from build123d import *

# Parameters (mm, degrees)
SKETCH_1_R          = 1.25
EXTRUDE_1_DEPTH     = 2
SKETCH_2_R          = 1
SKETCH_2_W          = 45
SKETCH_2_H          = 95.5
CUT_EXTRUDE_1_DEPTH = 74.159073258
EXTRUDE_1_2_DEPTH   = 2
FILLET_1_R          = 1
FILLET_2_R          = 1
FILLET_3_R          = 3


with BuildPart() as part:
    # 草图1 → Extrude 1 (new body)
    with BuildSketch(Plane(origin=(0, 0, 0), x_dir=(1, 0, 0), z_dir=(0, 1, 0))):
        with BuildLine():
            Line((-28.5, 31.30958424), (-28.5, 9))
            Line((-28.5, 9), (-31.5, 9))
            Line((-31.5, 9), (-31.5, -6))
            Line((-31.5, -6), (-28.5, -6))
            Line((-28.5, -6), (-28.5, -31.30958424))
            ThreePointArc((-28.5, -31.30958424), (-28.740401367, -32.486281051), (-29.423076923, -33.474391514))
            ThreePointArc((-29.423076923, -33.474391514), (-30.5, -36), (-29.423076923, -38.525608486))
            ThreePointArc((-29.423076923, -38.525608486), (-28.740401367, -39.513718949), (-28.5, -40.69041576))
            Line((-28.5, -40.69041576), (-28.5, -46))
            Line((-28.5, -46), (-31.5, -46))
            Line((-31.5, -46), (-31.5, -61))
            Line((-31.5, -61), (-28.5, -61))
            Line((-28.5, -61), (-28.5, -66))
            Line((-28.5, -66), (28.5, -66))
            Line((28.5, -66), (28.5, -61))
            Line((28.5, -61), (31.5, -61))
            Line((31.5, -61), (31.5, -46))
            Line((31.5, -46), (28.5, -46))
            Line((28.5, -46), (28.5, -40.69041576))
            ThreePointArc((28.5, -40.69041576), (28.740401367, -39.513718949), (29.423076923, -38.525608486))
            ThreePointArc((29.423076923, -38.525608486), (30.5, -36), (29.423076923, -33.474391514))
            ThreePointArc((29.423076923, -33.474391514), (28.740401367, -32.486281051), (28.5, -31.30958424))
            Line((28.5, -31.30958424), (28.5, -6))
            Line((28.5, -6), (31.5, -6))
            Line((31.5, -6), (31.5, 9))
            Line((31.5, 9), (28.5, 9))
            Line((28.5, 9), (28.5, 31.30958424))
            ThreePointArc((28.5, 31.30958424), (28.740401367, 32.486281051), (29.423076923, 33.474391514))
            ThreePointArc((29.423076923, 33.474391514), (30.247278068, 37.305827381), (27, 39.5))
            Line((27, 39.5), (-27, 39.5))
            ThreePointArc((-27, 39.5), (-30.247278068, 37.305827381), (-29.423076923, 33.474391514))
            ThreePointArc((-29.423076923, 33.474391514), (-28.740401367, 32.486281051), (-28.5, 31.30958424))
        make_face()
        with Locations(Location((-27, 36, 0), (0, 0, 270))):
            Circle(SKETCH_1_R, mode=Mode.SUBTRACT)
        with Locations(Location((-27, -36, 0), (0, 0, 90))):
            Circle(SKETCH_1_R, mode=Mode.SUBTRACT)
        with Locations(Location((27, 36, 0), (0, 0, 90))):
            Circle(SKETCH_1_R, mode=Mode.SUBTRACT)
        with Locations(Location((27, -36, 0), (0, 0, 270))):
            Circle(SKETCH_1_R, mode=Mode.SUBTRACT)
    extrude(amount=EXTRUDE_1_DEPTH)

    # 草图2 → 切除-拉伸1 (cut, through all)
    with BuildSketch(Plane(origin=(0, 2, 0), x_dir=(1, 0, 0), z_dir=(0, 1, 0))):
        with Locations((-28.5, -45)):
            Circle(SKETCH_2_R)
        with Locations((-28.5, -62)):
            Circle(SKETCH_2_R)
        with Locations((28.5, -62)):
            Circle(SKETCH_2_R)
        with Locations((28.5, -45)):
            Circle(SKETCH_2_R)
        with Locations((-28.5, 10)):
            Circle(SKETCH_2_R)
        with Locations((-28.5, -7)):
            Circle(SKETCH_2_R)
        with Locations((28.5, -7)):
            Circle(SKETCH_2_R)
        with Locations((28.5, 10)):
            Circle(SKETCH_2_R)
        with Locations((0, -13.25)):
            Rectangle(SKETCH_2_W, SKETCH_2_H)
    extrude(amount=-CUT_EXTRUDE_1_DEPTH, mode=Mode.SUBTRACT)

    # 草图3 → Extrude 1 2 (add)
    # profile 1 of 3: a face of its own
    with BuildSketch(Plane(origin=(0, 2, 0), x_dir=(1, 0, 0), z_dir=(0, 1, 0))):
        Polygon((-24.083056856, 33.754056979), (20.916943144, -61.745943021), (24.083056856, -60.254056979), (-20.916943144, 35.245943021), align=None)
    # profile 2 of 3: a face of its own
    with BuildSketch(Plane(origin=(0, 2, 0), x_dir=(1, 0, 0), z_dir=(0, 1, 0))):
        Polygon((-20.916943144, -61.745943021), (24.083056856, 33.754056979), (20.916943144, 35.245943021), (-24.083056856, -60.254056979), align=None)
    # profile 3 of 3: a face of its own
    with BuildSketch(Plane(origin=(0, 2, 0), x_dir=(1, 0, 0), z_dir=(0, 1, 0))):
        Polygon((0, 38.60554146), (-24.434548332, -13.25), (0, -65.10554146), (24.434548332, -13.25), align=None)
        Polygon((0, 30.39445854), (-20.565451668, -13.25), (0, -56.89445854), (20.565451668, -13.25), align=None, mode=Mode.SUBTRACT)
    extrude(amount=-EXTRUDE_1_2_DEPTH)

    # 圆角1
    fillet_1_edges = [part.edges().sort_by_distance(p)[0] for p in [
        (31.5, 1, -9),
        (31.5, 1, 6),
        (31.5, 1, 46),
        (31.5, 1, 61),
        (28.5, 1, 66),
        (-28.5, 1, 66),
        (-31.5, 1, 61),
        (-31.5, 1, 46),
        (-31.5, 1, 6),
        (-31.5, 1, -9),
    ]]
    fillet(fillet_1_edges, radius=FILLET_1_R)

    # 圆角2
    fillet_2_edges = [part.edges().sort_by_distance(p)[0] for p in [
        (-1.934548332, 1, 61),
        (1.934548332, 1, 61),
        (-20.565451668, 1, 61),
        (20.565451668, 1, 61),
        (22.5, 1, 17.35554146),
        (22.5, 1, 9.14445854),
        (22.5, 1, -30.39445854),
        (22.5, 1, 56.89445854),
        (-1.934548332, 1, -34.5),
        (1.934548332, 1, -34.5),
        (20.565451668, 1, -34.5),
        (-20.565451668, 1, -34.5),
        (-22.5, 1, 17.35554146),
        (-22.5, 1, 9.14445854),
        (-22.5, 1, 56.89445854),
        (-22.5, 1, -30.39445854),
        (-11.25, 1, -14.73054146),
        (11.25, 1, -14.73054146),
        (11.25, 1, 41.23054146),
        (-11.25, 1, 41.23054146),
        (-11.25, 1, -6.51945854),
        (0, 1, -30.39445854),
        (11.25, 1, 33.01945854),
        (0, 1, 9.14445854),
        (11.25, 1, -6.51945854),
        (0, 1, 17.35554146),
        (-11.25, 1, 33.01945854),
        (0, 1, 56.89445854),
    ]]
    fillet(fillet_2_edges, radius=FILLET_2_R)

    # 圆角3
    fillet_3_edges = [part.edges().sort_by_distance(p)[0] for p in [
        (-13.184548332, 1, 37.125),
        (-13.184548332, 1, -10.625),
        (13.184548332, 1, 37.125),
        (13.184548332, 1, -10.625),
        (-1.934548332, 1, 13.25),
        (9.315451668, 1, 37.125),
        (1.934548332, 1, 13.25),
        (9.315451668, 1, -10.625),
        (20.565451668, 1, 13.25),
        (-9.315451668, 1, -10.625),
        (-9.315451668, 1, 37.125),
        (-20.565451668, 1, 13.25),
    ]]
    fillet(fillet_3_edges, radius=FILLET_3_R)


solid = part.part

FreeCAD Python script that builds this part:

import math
import FreeCAD as App
import Part
import Sketcher
Q = App.Units.Quantity


def edges_at(feature, points):
    """Names of the edges that pass closest to the given points."""
    edges = feature.Shape.Edges
    near = lambda p: min(range(len(edges)), key=lambda i: edges[i].distToShape(Part.Vertex(*p))[0])
    return sorted({f"Edge{near(p) + 1}" for p in points})


def add_polygon(sketch, points):
    """Adds a closed chain of lines whose ends are joined by coincident constraints."""
    first, n = sketch.GeometryCount, len(points)
    for a, b in zip(points, points[1:] + points[:1]):
        sketch.addGeometry(Part.LineSegment(App.Vector(*a, 0), App.Vector(*b, 0)), False)
    for i in range(n):
        sketch.addConstraint(Sketcher.Constraint("Coincident", first + i, 2, first + (i + 1) % n, 1))

doc = App.newDocument("Part")
body = doc.addObject("PartDesign::Body", "Body")

# Sketch on XZ plane
sketch1 = body.newObject("Sketcher::SketchObject", "Sketch")
sketch1.AttachmentSupport = (doc.getObject("XZ_Plane"), [""])
sketch1.MapMode = "FlatFace"
sketch1.addGeometry(Part.LineSegment(App.Vector(-28.5, -31.309584, 0), App.Vector(-28.5, -9, 0)), False)
sketch1.addGeometry(Part.LineSegment(App.Vector(-28.5, -9, 0), App.Vector(-31.5, -9, 0)), False)
sketch1.addGeometry(Part.LineSegment(App.Vector(-31.5, -9, 0), App.Vector(-31.5, 6, 0)), False)
sketch1.addGeometry(Part.LineSegment(App.Vector(-31.5, 6, 0), App.Vector(-28.5, 6, 0)), False)
sketch1.addGeometry(Part.LineSegment(App.Vector(-28.5, 6, 0), App.Vector(-28.5, 31.309584, 0)), False)
sketch1.addGeometry(Part.ArcOfCircle(Part.Circle(App.Vector(-31.5, 31.309584, 0), App.Vector(0, 0, 1), 3), math.radians(0), math.radians(46.186939)), False)
sketch1.addGeometry(Part.ArcOfCircle(Part.Circle(App.Vector(-27, 36, 0), App.Vector(0, 0, 1), 3.5), math.radians(133.813061), math.radians(226.186939)), False)
sketch1.addGeometry(Part.ArcOfCircle(Part.Circle(App.Vector(-31.5, 40.690416, 0), App.Vector(0, 0, 1), 3), math.radians(-46.186939), math.radians(0)), False)
sketch1.addGeometry(Part.LineSegment(App.Vector(-28.5, 40.690416, 0), App.Vector(-28.5, 46, 0)), False)
sketch1.addGeometry(Part.LineSegment(App.Vector(-28.5, 46, 0), App.Vector(-31.5, 46, 0)), False)
sketch1.addGeometry(Part.LineSegment(App.Vector(-31.5, 46, 0), App.Vector(-31.5, 61, 0)), False)
sketch1.addGeometry(Part.LineSegment(App.Vector(-31.5, 61, 0), App.Vector(-28.5, 61, 0)), False)
sketch1.addGeometry(Part.LineSegment(App.Vector(-28.5, 61, 0), App.Vector(-28.5, 66, 0)), False)
sketch1.addGeometry(Part.LineSegment(App.Vector(-28.5, 66, 0), App.Vector(28.5, 66, 0)), False)
sketch1.addGeometry(Part.LineSegment(App.Vector(28.5, 66, 0), App.Vector(28.5, 61, 0)), False)
sketch1.addGeometry(Part.LineSegment(App.Vector(28.5, 61, 0), App.Vector(31.5, 61, 0)), False)
sketch1.addGeometry(Part.LineSegment(App.Vector(31.5, 61, 0), App.Vector(31.5, 46, 0)), False)
sketch1.addGeometry(Part.LineSegment(App.Vector(31.5, 46, 0), App.Vector(28.5, 46, 0)), False)
sketch1.addGeometry(Part.LineSegment(App.Vector(28.5, 46, 0), App.Vector(28.5, 40.690416, 0)), False)
sketch1.addGeometry(Part.ArcOfCircle(Part.Circle(App.Vector(31.5, 40.690416, 0), App.Vector(0, 0, 1), 3), math.radians(180), math.radians(226.186939)), False)
sketch1.addGeometry(Part.ArcOfCircle(Part.Circle(App.Vector(27, 36, 0), App.Vector(0, 0, 1), 3.5), math.radians(-46.186939), math.radians(46.186939)), False)
sketch1.addGeometry(Part.ArcOfCircle(Part.Circle(App.Vector(31.5, 31.309584, 0), App.Vector(0, 0, 1), 3), math.radians(133.813061), math.radians(180)), False)
sketch1.addGeometry(Part.LineSegment(App.Vector(28.5, 31.309584, 0), App.Vector(28.5, 6, 0)), False)
sketch1.addGeometry(Part.LineSegment(App.Vector(28.5, 6, 0), App.Vector(31.5, 6, 0)), False)
sketch1.addGeometry(Part.LineSegment(App.Vector(31.5, 6, 0), App.Vector(31.5, -9, 0)), False)
sketch1.addGeometry(Part.LineSegment(App.Vector(31.5, -9, 0), App.Vector(28.5, -9, 0)), False)
sketch1.addGeometry(Part.LineSegment(App.Vector(28.5, -9, 0), App.Vector(28.5, -31.309584, 0)), False)
sketch1.addGeometry(Part.ArcOfCircle(Part.Circle(App.Vector(31.5, -31.309584, 0), App.Vector(0, 0, 1), 3), math.radians(180), math.radians(226.186939)), False)
sketch1.addGeometry(Part.ArcOfCircle(Part.Circle(App.Vector(27, -36, 0), App.Vector(0, 0, 1), 3.5), math.radians(-90), math.radians(46.186939)), False)
sketch1.addGeometry(Part.LineSegment(App.Vector(27, -39.5, 0), App.Vector(-27, -39.5, 0)), False)
sketch1.addGeometry(Part.ArcOfCircle(Part.Circle(App.Vector(-27, -36, 0), App.Vector(0, 0, 1), 3.5), math.radians(133.813061), math.radians(270)), False)
sketch1.addGeometry(Part.ArcOfCircle(Part.Circle(App.Vector(-31.5, -31.309584, 0), App.Vector(0, 0, 1), 3), math.radians(-46.186939), math.radians(0)), False)
sketch1.addGeometry(Part.Circle(App.Vector(-27, 36, 0), App.Vector(0, 0, 1), 1.25), False)
sketch1.addGeometry(Part.Circle(App.Vector(27, 36, 0), App.Vector(0, 0, 1), 1.25), False)
sketch1.addGeometry(Part.Circle(App.Vector(-27, -36, 0), App.Vector(0, 0, 1), 1.25), False)
sketch1.addGeometry(Part.Circle(App.Vector(27, -36, 0), App.Vector(0, 0, 1), 1.25), False)
sketch1.addConstraint(Sketcher.Constraint("Coincident", 0, 2, 1, 1))
sketch1.addConstraint(Sketcher.Constraint("Coincident", 1, 2, 2, 1))
sketch1.addConstraint(Sketcher.Constraint("Coincident", 2, 2, 3, 1))
sketch1.addConstraint(Sketcher.Constraint("Coincident", 3, 2, 4, 1))
sketch1.addConstraint(Sketcher.Constraint("Tangent", 4, 2, 5, 1))
sketch1.addConstraint(Sketcher.Constraint("Tangent", 5, 2, 6, 2))
sketch1.addConstraint(Sketcher.Constraint("Tangent", 6, 1, 7, 1))
sketch1.addConstraint(Sketcher.Constraint("Tangent", 7, 2, 8, 1))
sketch1.addConstraint(Sketcher.Constraint("Coincident", 8, 2, 9, 1))
sketch1.addConstraint(Sketcher.Constraint("Coincident", 9, 2, 10, 1))
sketch1.addConstraint(Sketcher.Constraint("Coincident", 10, 2, 11, 1))
sketch1.addConstraint(Sketcher.Constraint("Coincident", 11, 2, 12, 1))
sketch1.addConstraint(Sketcher.Constraint("Coincident", 12, 2, 13, 1))
sketch1.addConstraint(Sketcher.Constraint("Coincident", 13, 2, 14, 1))
sketch1.addConstraint(Sketcher.Constraint("Coincident", 14, 2, 15, 1))
sketch1.addConstraint(Sketcher.Constraint("Coincident", 15, 2, 16, 1))
sketch1.addConstraint(Sketcher.Constraint("Coincident", 16, 2, 17, 1))
sketch1.addConstraint(Sketcher.Constraint("Coincident", 17, 2, 18, 1))
sketch1.addConstraint(Sketcher.Constraint("Tangent", 18, 2, 19, 1))
sketch1.addConstraint(Sketcher.Constraint("Tangent", 19, 2, 20, 2))
sketch1.addConstraint(Sketcher.Constraint("Tangent", 20, 1, 21, 1))
sketch1.addConstraint(Sketcher.Constraint("Tangent", 21, 2, 22, 1))
sketch1.addConstraint(Sketcher.Constraint("Coincident", 22, 2, 23, 1))
sketch1.addConstraint(Sketcher.Constraint("Coincident", 23, 2, 24, 1))
sketch1.addConstraint(Sketcher.Constraint("Coincident", 24, 2, 25, 1))
sketch1.addConstraint(Sketcher.Constraint("Coincident", 25, 2, 26, 1))
sketch1.addConstraint(Sketcher.Constraint("Tangent", 26, 2, 27, 1))
sketch1.addConstraint(Sketcher.Constraint("Tangent", 27, 2, 28, 2))
sketch1.addConstraint(Sketcher.Constraint("Tangent", 28, 1, 29, 1))
sketch1.addConstraint(Sketcher.Constraint("Tangent", 29, 2, 30, 2))
sketch1.addConstraint(Sketcher.Constraint("Tangent", 30, 1, 31, 1))
sketch1.addConstraint(Sketcher.Constraint("Tangent", 31, 2, 0, 1))
sketch1.addConstraint(Sketcher.Constraint("Vertical", 0))
sketch1.addConstraint(Sketcher.Constraint("Horizontal", 1))
sketch1.addConstraint(Sketcher.Constraint("Vertical", 2))
sketch1.addConstraint(Sketcher.Constraint("Horizontal", 3))
sketch1.addConstraint(Sketcher.Constraint("Vertical", 4))
sketch1.addConstraint(Sketcher.Constraint("Vertical", 8))
sketch1.addConstraint(Sketcher.Constraint("Horizontal", 9))
sketch1.addConstraint(Sketcher.Constraint("Vertical", 10))
sketch1.addConstraint(Sketcher.Constraint("Horizontal", 11))
sketch1.addConstraint(Sketcher.Constraint("Vertical", 12))
sketch1.addConstraint(Sketcher.Constraint("Horizontal", 13))
sketch1.addConstraint(Sketcher.Constraint("Vertical", 14))
sketch1.addConstraint(Sketcher.Constraint("Horizontal", 15))
sketch1.addConstraint(Sketcher.Constraint("Vertical", 16))
sketch1.addConstraint(Sketcher.Constraint("Horizontal", 17))
sketch1.addConstraint(Sketcher.Constraint("Vertical", 18))
sketch1.addConstraint(Sketcher.Constraint("Vertical", 22))
sketch1.addConstraint(Sketcher.Constraint("Horizontal", 23))
sketch1.addConstraint(Sketcher.Constraint("Vertical", 24))
sketch1.addConstraint(Sketcher.Constraint("Horizontal", 25))
sketch1.addConstraint(Sketcher.Constraint("Vertical", 26))
sketch1.addConstraint(Sketcher.Constraint("Horizontal", 29))
sketch1.addConstraint(Sketcher.Constraint("Coincident", 32, 3, 6, 3))
sketch1.addConstraint(Sketcher.Constraint("Coincident", 33, 3, 20, 3))
sketch1.addConstraint(Sketcher.Constraint("Coincident", 34, 3, 30, 3))
sketch1.addConstraint(Sketcher.Constraint("Coincident", 35, 3, 28, 3))
sketch1.addConstraint(Sketcher.Constraint("Equal", 5, 7))
sketch1.addConstraint(Sketcher.Constraint("Equal", 7, 19))
sketch1.addConstraint(Sketcher.Constraint("Equal", 6, 20))
sketch1.addConstraint(Sketcher.Constraint("Equal", 19, 21))
sketch1.addConstraint(Sketcher.Constraint("Equal", 21, 27))
sketch1.addConstraint(Sketcher.Constraint("Equal", 20, 28))
sketch1.addConstraint(Sketcher.Constraint("Equal", 28, 30))
sketch1.addConstraint(Sketcher.Constraint("Equal", 27, 31))
sketch1.addConstraint(Sketcher.Constraint("Equal", 32, 33))
sketch1.addConstraint(Sketcher.Constraint("Equal", 33, 34))
sketch1.addConstraint(Sketcher.Constraint("Equal", 34, 35))
sketch1.addConstraint(Sketcher.Constraint("Symmetric", 5, 3, 27, 3, -1, 1))
sketch1.addConstraint(Sketcher.Constraint("Symmetric", 20, 3, 30, 3, -1, 1))
sketch1.addConstraint(Sketcher.Constraint("Symmetric", 7, 3, 19, 3, -2))
sketch1.addConstraint(Sketcher.Constraint("Symmetric", 5, 3, 21, 3, -2))
sketch1.addConstraint(Sketcher.Constraint("Symmetric", 11, 2, 14, 2, -2))
sketch1.addConstraint(Sketcher.Constraint("Symmetric", 9, 2, 16, 2, -2))
sketch1.addConstraint(Sketcher.Constraint("Symmetric", 2, 2, 23, 2, -2))
sketch1.addConstraint(Sketcher.Constraint("Symmetric", 0, 2, 25, 2, -2))
sketch1.addConstraint(Sketcher.Constraint("Vertical", 5, 3, 7, 3))
sketch1.addConstraint(Sketcher.Constraint("Vertical", 31, 3, 1, 2))
sketch1.addConstraint(Sketcher.Constraint("Vertical", 2, 2, 9, 2))
sketch1.addConstraint(Sketcher.Constraint("Vertical", 8, 2, 11, 2))
sketch1.addConstraint(Sketcher.Constraint("Equal", 2, 10))
sketch1.addConstraint(Sketcher.Constraint("Radius", 5, Q("3 mm")))
sketch1.addConstraint(Sketcher.Constraint("Diameter", 32, Q("2.5 mm")))
sketch1.addConstraint(Sketcher.Constraint("Radius", 6, Q("3.5 mm")))
sketch1.addConstraint(Sketcher.Constraint("DistanceX", 13, 1, 13, 2, Q("57 mm")))
sketch1.addConstraint(Sketcher.Constraint("DistanceX", 29, 2, 29, 1, Q("54 mm")))
sketch1.addConstraint(Sketcher.Constraint("DistanceY", 2, 1, 2, 2, Q("15 mm")))
sketch1.addConstraint(Sketcher.Constraint("DistanceY", 12, 1, 12, 2, Q("5 mm")))
sketch1.addConstraint(Sketcher.Constraint("DistanceY", -1, 1, 6, 3, Q("36 mm")))
sketch1.addConstraint(Sketcher.Constraint("DistanceY", 0, 2, -1, 1, Q("9 mm")))
sketch1.addConstraint(Sketcher.Constraint("DistanceY", -1, 1, 8, 2, Q("46 mm")))
pad1 = body.newObject("PartDesign::Pad", "Pad")
pad1.Profile = sketch1
pad1.Length = 2
pad1.Reversed = True

# Sketch on XZ plane
sketch2 = body.newObject("Sketcher::SketchObject", "Sketch001")
sketch2.AttachmentSupport = (doc.getObject("XZ_Plane"), [""])
sketch2.MapMode = "FlatFace"
sketch2.AttachmentOffset = App.Placement(App.Vector(0, 0, -2), App.Rotation())
sketch2.addGeometry(Part.Circle(App.Vector(-28.5, 45, 0), App.Vector(0, 0, 1), 1), False)  # 0
sketch2.addGeometry(Part.Circle(App.Vector(-28.5, 62, 0), App.Vector(0, 0, 1), 1), False)  # 1
sketch2.addGeometry(Part.Circle(App.Vector(28.5, 62, 0), App.Vector(0, 0, 1), 1), False)  # 2
sketch2.addGeometry(Part.Circle(App.Vector(28.5, 45, 0), App.Vector(0, 0, 1), 1), False)  # 3
sketch2.addGeometry(Part.Circle(App.Vector(-28.5, -10, 0), App.Vector(0, 0, 1), 1), False)  # 4
sketch2.addGeometry(Part.Circle(App.Vector(-28.5, 7, 0), App.Vector(0, 0, 1), 1), False)  # 5
sketch2.addGeometry(Part.Circle(App.Vector(28.5, 7, 0), App.Vector(0, 0, 1), 1), False)  # 6
sketch2.addGeometry(Part.Circle(App.Vector(28.5, -10, 0), App.Vector(0, 0, 1), 1), False)  # 7
add_polygon(sketch2, [(-22.5, -34.5), (-22.5, 61), (22.5, 61), (22.5, -34.5)])  # lines 8-11
sketch2.addConstraint(Sketcher.Constraint("Vertical", 8))
sketch2.addConstraint(Sketcher.Constraint("Horizontal", 9))
sketch2.addConstraint(Sketcher.Constraint("Vertical", 10))
sketch2.addConstraint(Sketcher.Constraint("Horizontal", 11))
sketch2.addConstraint(Sketcher.Constraint("Equal", 0, 1))
sketch2.addConstraint(Sketcher.Constraint("Equal", 1, 2))
sketch2.addConstraint(Sketcher.Constraint("Equal", 2, 3))
sketch2.addConstraint(Sketcher.Constraint("Equal", 3, 4))
sketch2.addConstraint(Sketcher.Constraint("Equal", 4, 5))
sketch2.addConstraint(Sketcher.Constraint("Equal", 5, 6))
sketch2.addConstraint(Sketcher.Constraint("Equal", 6, 7))
sketch2.addConstraint(Sketcher.Constraint("Symmetric", 1, 3, 2, 3, -2))
sketch2.addConstraint(Sketcher.Constraint("Symmetric", 0, 3, 3, 3, -2))
sketch2.addConstraint(Sketcher.Constraint("Symmetric", 5, 3, 6, 3, -2))
sketch2.addConstraint(Sketcher.Constraint("Symmetric", 4, 3, 7, 3, -2))
sketch2.addConstraint(Sketcher.Constraint("Vertical", 0, 3, 1, 3))
sketch2.addConstraint(Sketcher.Constraint("Vertical", 1, 3, 4, 3))
sketch2.addConstraint(Sketcher.Constraint("Vertical", 4, 3, 5, 3))
sketch2.addConstraint(Sketcher.Constraint("Diameter", 0, Q("2 mm")))
sketch2.addConstraint(Sketcher.Constraint("DistanceX", 9, 1, 9, 2, Q("45 mm")))
sketch2.addConstraint(Sketcher.Constraint("DistanceY", 8, 1, 8, 2, Q("95.5 mm")))
sketch2.addConstraint(Sketcher.Constraint("DistanceY", -1, 1, 0, 3, Q("45 mm")))
sketch2.addConstraint(Sketcher.Constraint("DistanceY", -1, 1, 1, 3, Q("62 mm")))
sketch2.addConstraint(Sketcher.Constraint("DistanceY", 4, 3, -1, 1, Q("10 mm")))
sketch2.addConstraint(Sketcher.Constraint("DistanceY", -1, 1, 5, 3, Q("7 mm")))
sketch2.addConstraint(Sketcher.Constraint("DistanceY", -1, 1, 8, 2, Q("61 mm")))
sketch2.addConstraint(Sketcher.Constraint("DistanceX", 1, 3, 2, 3, Q("57 mm")))
sketch2.addConstraint(Sketcher.Constraint("DistanceX", 1, 3, 8, 2, Q("6 mm")))
pocket1 = body.newObject("PartDesign::Pocket", "Pocket")
pocket1.Profile = sketch2
pocket1.Type = "ThroughAll"
pocket1.Reversed = True

# Sketch on XZ plane
sketch3 = body.newObject("Sketcher::SketchObject", "Sketch002")
sketch3.AttachmentSupport = (doc.getObject("XZ_Plane"), [""])
sketch3.MapMode = "FlatFace"
sketch3.AttachmentOffset = App.Placement(App.Vector(0, 0, -2), App.Rotation())
add_polygon(sketch3, [(-20.916943, -35.245943), (-24.083057, -33.754057), (-13.184548, -10.625), (-24.434548, 13.25), (-13.184548, 37.125), (-24.083057, 60.254057), (-20.916943, 61.745943), (-11.25, 41.230541), (0, 65.105541), (11.25, 41.230541), (20.916943, 61.745943), (24.083057, 60.254057), (13.184548, 37.125), (24.434548, 13.25), (13.184548, -10.625), (24.083057, -33.754057), (20.916943, -35.245943), (11.25, -14.730541), (0, -38.605541), (-11.25, -14.730541)])  # lines 0-19
add_polygon(sketch3, [(-20.565452, 13.25), (-11.25, -6.519459), (-1.934548, 13.25), (-11.25, 33.019459)])  # lines 20-23
add_polygon(sketch3, [(0, -30.394459), (9.315452, -10.625), (0, 9.144459), (-9.315452, -10.625)])  # lines 24-27
add_polygon(sketch3, [(0, 56.894459), (-9.315452, 37.125), (0, 17.355541), (9.315452, 37.125)])  # lines 28-31
add_polygon(sketch3, [(1.934548, 13.25), (11.25, -6.519459), (20.565452, 13.25), (11.25, 33.019459)])  # lines 32-35
sketch3.addConstraint(Sketcher.Constraint("Symmetric", 6, 2, 8, 2, -2))
sketch3.addConstraint(Sketcher.Constraint("Symmetric", 5, 2, 9, 2, -2))
sketch3.addConstraint(Sketcher.Constraint("Symmetric", 4, 2, 10, 2, -2))
sketch3.addConstraint(Sketcher.Constraint("Symmetric", 3, 2, 11, 2, -2))
sketch3.addConstraint(Sketcher.Constraint("Symmetric", 2, 2, 12, 2, -2))
sketch3.addConstraint(Sketcher.Constraint("Symmetric", 1, 2, 13, 2, -2))
sketch3.addConstraint(Sketcher.Constraint("Symmetric", 0, 2, 14, 2, -2))
sketch3.addConstraint(Sketcher.Constraint("Symmetric", 16, 2, 18, 2, -2))
sketch3.addConstraint(Sketcher.Constraint("Symmetric", 15, 2, 19, 2, -2))
sketch3.addConstraint(Sketcher.Constraint("Symmetric", 24, 2, 26, 2, -2))
sketch3.addConstraint(Sketcher.Constraint("Symmetric", 28, 2, 30, 2, -2))
sketch3.addConstraint(Sketcher.Constraint("Symmetric", 20, 2, 32, 2, -2))
sketch3.addConstraint(Sketcher.Constraint("Symmetric", 23, 2, 33, 2, -2))
sketch3.addConstraint(Sketcher.Constraint("Symmetric", 22, 2, 34, 2, -2))
sketch3.addConstraint(Sketcher.Constraint("Symmetric", 21, 2, 35, 2, -2))
sketch3.addConstraint(Sketcher.Constraint("PointOnObject", 7, 2, -2))
sketch3.addConstraint(Sketcher.Constraint("PointOnObject", 17, 2, -2))
sketch3.addConstraint(Sketcher.Constraint("PointOnObject", 25, 2, -2))
sketch3.addConstraint(Sketcher.Constraint("PointOnObject", 27, 2, -2))
sketch3.addConstraint(Sketcher.Constraint("PointOnObject", 29, 2, -2))
sketch3.addConstraint(Sketcher.Constraint("PointOnObject", 31, 2, -2))
sketch3.addConstraint(Sketcher.Constraint("Perpendicular", 0, 1))
sketch3.addConstraint(Sketcher.Constraint("Parallel", 1, 3))
sketch3.addConstraint(Sketcher.Constraint("Parallel", 2, 4))
sketch3.addConstraint(Sketcher.Constraint("Perpendicular", 4, 5))
sketch3.addConstraint(Sketcher.Constraint("Perpendicular", 5, 6))
sketch3.addConstraint(Sketcher.Constraint("Parallel", 3, 7))
sketch3.addConstraint(Sketcher.Constraint("Parallel", 6, 8))
sketch3.addConstraint(Sketcher.Constraint("Perpendicular", 15, 16))
sketch3.addConstraint(Sketcher.Constraint("Parallel", 13, 17))
sketch3.addConstraint(Sketcher.Constraint("Parallel", 18, 20))
sketch3.addConstraint(Sketcher.Constraint("Parallel", 19, 21))
sketch3.addConstraint(Sketcher.Constraint("Parallel", 20, 22))
sketch3.addConstraint(Sketcher.Constraint("Parallel", 21, 23))
sketch3.addConstraint(Sketcher.Constraint("Parallel", 23, 24))
sketch3.addConstraint(Sketcher.Constraint("Parallel", 22, 25))
sketch3.addConstraint(Sketcher.Constraint("Parallel", 26, 28))
sketch3.addConstraint(Sketcher.Constraint("Parallel", 27, 29))
sketch3.addConstraint(Sketcher.Constraint("Horizontal", 12, 2, 21, 2))
sketch3.addConstraint(Sketcher.Constraint("Horizontal", 21, 2, 23, 2))
sketch3.addConstraint(Sketcher.Constraint("Horizontal", 13, 2, 24, 2))
sketch3.addConstraint(Sketcher.Constraint("Horizontal", 11, 2, 28, 2))
sketch3.addConstraint(Sketcher.Constraint("Vertical", 1, 2, 3, 2))
sketch3.addConstraint(Sketcher.Constraint("Vertical", 0, 2, 4, 2))
sketch3.addConstraint(Sketcher.Constraint("Vertical", 9, 2, 15, 2))
sketch3.addConstraint(Sketcher.Constraint("Vertical", 8, 2, 16, 2))
sketch3.addConstraint(Sketcher.Constraint("Vertical", 18, 2, 20, 2))
sketch3.addConstraint(Sketcher.Constraint("Vertical", 26, 2, 28, 2))
sketch3.addConstraint(Sketcher.Constraint("Equal", 3, 7))
sketch3.addConstraint(Sketcher.Constraint("Equal", 23, 24))
sketch3.addConstraint(Sketcher.Constraint("DistanceX", 0, 2, 15, 2, Q("45 mm")))
sketch3.addConstraint(Sketcher.Constraint("Distance", 0, Q("3.5 mm")))
sketch3.addConstraint(Sketcher.Constraint("Angle", 0, Q("154.76999 deg")))
sketch3.addConstraint(Sketcher.Constraint("DistanceY", 0, 2, 5, 2, Q("95.5 mm")))
sketch3.addConstraint(Sketcher.Constraint("DistanceX", 6, 2, 8, 2, Q("22.5 mm")))
sketch3.addConstraint(Sketcher.Constraint("DistanceX", 2, 2, 21, 2, Q("22.5 mm")))
sketch3.addConstraint(Sketcher.Constraint("DistanceY", -1, 1, 2, 2, Q("13.25 mm")))
pad2 = body.newObject("PartDesign::Pad", "Pad001")
pad2.Profile = sketch3
pad2.Length = 2
doc.recompute()

fillet = body.newObject("PartDesign::Fillet", "Fillet")
fillet.Base = (pad2, edges_at(pad2, [
    (31.5, 1, -9),
    (31.5, 1, 6),
    (31.5, 1, 46),
    (31.5, 1, 61),
    (28.5, 1, 66),
    (-28.5, 1, 66),
    (-31.5, 1, 61),
    (-31.5, 1, 46),
    (-31.5, 1, 6),
    (-31.5, 1, -9),
]))
fillet.Radius = 1
doc.recompute()

fillet2 = body.newObject("PartDesign::Fillet", "Fillet001")
fillet2.Base = (fillet, edges_at(fillet, [
    (-1.935, 1, 61),
    (1.935, 1, 61),
    (-20.565, 1, 61),
    (20.565, 1, 61),
    (22.5, 1, 17.356),
    (22.5, 1, 9.144),
    (22.5, 1, -30.394),
    (22.5, 1, 56.894),
    (-1.935, 1, -34.5),
    (1.935, 1, -34.5),
    (20.565, 1, -34.5),
    (-20.565, 1, -34.5),
    (-22.5, 1, 17.356),
    (-22.5, 1, 9.144),
    (-22.5, 1, 56.894),
    (-22.5, 1, -30.394),
    (-11.25, 1, -14.731),
    (11.25, 1, -14.731),
    (11.25, 1, 41.231),
    (-11.25, 1, 41.231),
    (-11.25, 1, -6.519),
    (0, 1, -30.394),
    (11.25, 1, 33.019),
    (0, 1, 9.144),
    (11.25, 1, -6.519),
    (0, 1, 17.356),
    (-11.25, 1, 33.019),
    (0, 1, 56.894),
]))
fillet2.Radius = 1
doc.recompute()

fillet3 = body.newObject("PartDesign::Fillet", "Fillet002")
fillet3.Base = (fillet2, edges_at(fillet2, [
    (-13.185, 1, 37.125),
    (-13.185, 1, -10.625),
    (13.185, 1, 37.125),
    (13.185, 1, -10.625),
    (-1.935, 1, 13.25),
    (9.315, 1, 37.125),
    (1.935, 1, 13.25),
    (9.315, 1, -10.625),
    (20.565, 1, 13.25),
    (-9.315, 1, -10.625),
    (-9.315, 1, 37.125),
    (-20.565, 1, 13.25),
]))
fillet3.Radius = 3

doc.recompute()
